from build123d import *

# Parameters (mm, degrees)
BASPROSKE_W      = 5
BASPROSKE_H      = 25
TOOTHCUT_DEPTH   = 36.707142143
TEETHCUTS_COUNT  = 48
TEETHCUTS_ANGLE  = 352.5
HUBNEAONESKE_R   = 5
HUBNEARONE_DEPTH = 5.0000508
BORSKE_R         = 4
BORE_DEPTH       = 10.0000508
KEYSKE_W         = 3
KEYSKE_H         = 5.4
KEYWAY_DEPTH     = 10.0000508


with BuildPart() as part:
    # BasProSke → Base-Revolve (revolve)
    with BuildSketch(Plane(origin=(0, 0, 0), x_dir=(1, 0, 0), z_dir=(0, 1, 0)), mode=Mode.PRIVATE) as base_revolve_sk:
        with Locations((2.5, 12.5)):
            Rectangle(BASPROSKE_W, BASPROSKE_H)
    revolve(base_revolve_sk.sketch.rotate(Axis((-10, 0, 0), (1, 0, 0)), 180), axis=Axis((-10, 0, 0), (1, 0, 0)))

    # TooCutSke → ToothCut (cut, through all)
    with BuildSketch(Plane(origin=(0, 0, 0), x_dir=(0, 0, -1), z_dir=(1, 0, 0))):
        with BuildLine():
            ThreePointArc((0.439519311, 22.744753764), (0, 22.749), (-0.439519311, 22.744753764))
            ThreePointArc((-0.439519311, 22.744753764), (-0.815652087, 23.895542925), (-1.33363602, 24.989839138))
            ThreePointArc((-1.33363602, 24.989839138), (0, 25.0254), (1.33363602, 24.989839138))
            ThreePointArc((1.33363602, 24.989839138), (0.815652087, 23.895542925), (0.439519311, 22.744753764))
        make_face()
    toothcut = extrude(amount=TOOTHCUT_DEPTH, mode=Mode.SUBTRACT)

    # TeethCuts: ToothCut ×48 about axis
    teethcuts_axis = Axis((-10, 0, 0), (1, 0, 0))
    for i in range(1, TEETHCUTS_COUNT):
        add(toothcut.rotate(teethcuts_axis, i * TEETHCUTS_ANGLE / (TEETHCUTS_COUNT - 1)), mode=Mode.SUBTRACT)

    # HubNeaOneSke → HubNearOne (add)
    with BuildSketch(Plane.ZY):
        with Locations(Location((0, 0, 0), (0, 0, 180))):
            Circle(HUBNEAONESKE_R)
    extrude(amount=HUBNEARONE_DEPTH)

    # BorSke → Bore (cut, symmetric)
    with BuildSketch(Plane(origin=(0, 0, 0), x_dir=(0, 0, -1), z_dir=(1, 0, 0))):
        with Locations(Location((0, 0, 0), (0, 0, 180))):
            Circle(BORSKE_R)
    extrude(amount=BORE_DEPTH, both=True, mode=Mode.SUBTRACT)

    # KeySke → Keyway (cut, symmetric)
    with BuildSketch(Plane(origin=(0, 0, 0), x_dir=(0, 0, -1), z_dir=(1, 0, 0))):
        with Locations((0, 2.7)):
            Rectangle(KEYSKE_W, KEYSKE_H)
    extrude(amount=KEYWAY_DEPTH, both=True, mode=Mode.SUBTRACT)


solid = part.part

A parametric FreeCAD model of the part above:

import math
import FreeCAD as App
import Part
import Sketcher

V = App.Vector
Q = App.Units.Quantity

doc = App.newDocument("Part")
params = doc.addObject("Spreadsheet::Sheet", "Params")
for row, (alias, value) in enumerate([
    ("sketch1_width", "5 mm"),
    ("sketch1_height", "25 mm"),
    ("revolution_angle", "360 deg"),
    ("sketch2_radius", "9.6 mm"),
    ("sketch3_diameter", "10 mm"),
    ("pad1_length", "5.000051 mm"),
    ("sketch4_diameter", "8 mm"),
    ("pocket2_length", "20.000102 mm"),
    ("sketch5_height", "3 mm"),
    ("sketch5_width", "5.4 mm"),
    ("pocket3_length", "20.000102 mm"),
], start=1):
    params.set(f"A{row}", alias)
    params.set(f"B{row}", "=" + value)
    params.setAlias(f"B{row}", alias)

body = doc.addObject("PartDesign::Body", "Body")

sketch1 = body.newObject("Sketcher::SketchObject", "Sketch")
sketch1.AttachmentSupport = (doc.getObject("XZ_Plane"), [""])
sketch1.MapMode = "FlatFace"
sketch1.addGeometry(Part.LineSegment(V(0, -25, 0), V(0, 0, 0)), False)
sketch1.addGeometry(Part.LineSegment(V(0, 0, 0), V(5, 0, 0)), False)
sketch1.addGeometry(Part.LineSegment(V(5, 0, 0), V(5, -25, 0)), False)
sketch1.addGeometry(Part.LineSegment(V(5, -25, 0), V(0, -25, 0)), False)
sketch1.addConstraint(Sketcher.Constraint("Coincident", 0, 2, 1, 1))
sketch1.addConstraint(Sketcher.Constraint("Coincident", 1, 2, 2, 1))
sketch1.addConstraint(Sketcher.Constraint("Coincident", 2, 2, 3, 1))
sketch1.addConstraint(Sketcher.Constraint("Coincident", 3, 2, 0, 1))
sketch1.addConstraint(Sketcher.Constraint("Vertical", 0))
sketch1.addConstraint(Sketcher.Constraint("Horizontal", 1))
sketch1.addConstraint(Sketcher.Constraint("Vertical", 2))
sketch1.addConstraint(Sketcher.Constraint("Horizontal", 3))
sketch1.addConstraint(Sketcher.Constraint("Coincident", 0, 2, -1, 1))
sketch1.addConstraint(Sketcher.Constraint("DistanceX", 1, 1, 1, 2, Q("5 mm")))
sketch1.addConstraint(Sketcher.Constraint("DistanceY", 0, 1, 0, 2, Q("25 mm")))
sketch1.setExpression("Constraints[9]", "Params.sketch1_width")
sketch1.setExpression("Constraints[10]", "Params.sketch1_height")
revolution = body.newObject("PartDesign::Revolution", "Revolution")
revolution.Profile = sketch1
revolution.ReferenceAxis = (sketch1, ["H_Axis"])
revolution.setExpression("Angle", "Params.revolution_angle")

sketch2 = body.newObject("Sketcher::SketchObject", "Sketch001")
sketch2.AttachmentSupport = (doc.getObject("YZ_Plane"), [""])
sketch2.MapMode = "FlatFace"
sketch2.addGeometry(Part.ArcOfCircle(Part.Circle(V(0, 0, 0), V(0, 0, 1), 22.7), math.radians(-1.11), math.radians(1.11)), False)
sketch2.addGeometry(Part.ArcOfCircle(Part.Circle(V(20.3, -9.7, 0), V(0, 0, 1), 9.6), math.radians(61.05), math.radians(75.52)), False)
sketch2.addGeometry(Part.ArcOfCircle(Part.Circle(V(0, 0, 0), V(0, 0, 1), 25), math.radians(-3.05), math.radians(3.05)), False)
sketch2.addGeometry(Part.ArcOfCircle(Part.Circle(V(20.3, 9.7, 0), V(0, 0, 1), 9.6), math.radians(-75.52), math.radians(-61.05)), False)
sketch2.addConstraint(Sketcher.Constraint("Coincident", 0, 1, 1, 2))
sketch2.addConstraint(Sketcher.Constraint("Coincident", 1, 1, 2, 1))
sketch2.addConstraint(Sketcher.Constraint("Coincident", 2, 2, 3, 2))
sketch2.addConstraint(Sketcher.Constraint("Coincident", 3, 1, 0, 2))
sketch2.addConstraint(Sketcher.Constraint("Coincident", 0, 3, -1, 1))
sketch2.addConstraint(Sketcher.Constraint("Coincident", 2, 3, -1, 1))
sketch2.addConstraint(Sketcher.Constraint("Equal", 1, 3))
sketch2.addConstraint(Sketcher.Constraint("Symmetric", 1, 3, 3, 3, -1))
sketch2.addConstraint(Sketcher.Constraint("Radius", 1, Q("9.6 mm")))
sketch2.addConstraint(Sketcher.Constraint("Radius", 0, Q("22.749001 mm")))
sketch2.addConstraint(Sketcher.Constraint("Radius", 2, Q("25.0254 mm")))
sketch2.addConstraint(Sketcher.Constraint("DistanceY", 0, 1, -1, 1, Q("0.439519 mm")))
sketch2.addConstraint(Sketcher.Constraint("DistanceX", -1, 1, 2, 2, Q("24.989839 mm")))
sketch2.setExpression("Constraints[8]", "Params.sketch2_radius")
pocket1 = body.newObject("PartDesign::Pocket", "Pocket")
pocket1.Profile = sketch2
pocket1.Type = "ThroughAll"
pocket1.Reversed = True
doc.recompute()

polarpattern = body.newObject("PartDesign::PolarPattern", "PolarPattern")
polarpattern.Originals = [pocket1]
polarpattern.Axis = (doc.getObject("X_Axis"), [""])
polarpattern.Angle = 360
polarpattern.Occurrences = 48
body.Tip = polarpattern

sketch3 = body.newObject("Sketcher::SketchObject", "Sketch002")
sketch3.AttachmentSupport = (doc.getObject("YZ_Plane"), [""])
sketch3.MapMode = "FlatFace"
sketch3.addGeometry(Part.Circle(V(0, 0, 0), V(0, 0, 1), 5), False)
sketch3.addConstraint(Sketcher.Constraint("Coincident", 0, 3, -1, 1))
sketch3.addConstraint(Sketcher.Constraint("Diameter", 0, Q("10 mm")))
sketch3.setExpression("Constraints[1]", "Params.sketch3_diameter")
pad1 = body.newObject("PartDesign::Pad", "Pad")
pad1.Profile = sketch3
pad1.setExpression("Length", "Params.pad1_length")
pad1.Reversed = True

sketch4 = body.newObject("Sketcher::SketchObject", "Sketch003")
sketch4.AttachmentSupport = (doc.getObject("YZ_Plane"), [""])
sketch4.MapMode = "FlatFace"
sketch4.addGeometry(Part.Circle(V(0, 0, 0), V(0, 0, 1), 4), False)
sketch4.addConstraint(Sketcher.Constraint("Coincident", 0, 3, -1, 1))
sketch4.addConstraint(Sketcher.Constraint("Diameter", 0, Q("8 mm")))
sketch4.setExpression("Constraints[1]", "Params.sketch4_diameter")
pocket2 = body.newObject("PartDesign::Pocket", "Pocket001")
pocket2.Profile = sketch4
pocket2.setExpression("Length", "Params.pocket2_length")
pocket2.Midplane = True

sketch5 = body.newObject("Sketcher::SketchObject", "Sketch004")
sketch5.AttachmentSupport = (doc.getObject("YZ_Plane"), [""])
sketch5.MapMode = "FlatFace"
sketch5.addGeometry(Part.LineSegment(V(5.4, 1.5, 0), V(0, 1.5, 0)), False)
sketch5.addGeometry(Part.LineSegment(V(0, 1.5, 0), V(0, -1.5, 0)), False)
sketch5.addGeometry(Part.LineSegment(V(0, -1.5, 0), V(5.4, -1.5, 0)), False)
sketch5.addGeometry(Part.LineSegment(V(5.4, -1.5, 0), V(5.4, 1.5, 0)), False)
sketch5.addConstraint(Sketcher.Constraint("Coincident", 0, 2, 1, 1))
sketch5.addConstraint(Sketcher.Constraint("Coincident", 1, 2, 2, 1))
sketch5.addConstraint(Sketcher.Constraint("Coincident", 2, 2, 3, 1))
sketch5.addConstraint(Sketcher.Constraint("Coincident", 3, 2, 0, 1))
sketch5.addConstraint(Sketcher.Constraint("Horizontal", 0))
sketch5.addConstraint(Sketcher.Constraint("Vertical", 1))
sketch5.addConstraint(Sketcher.Constraint("Horizontal", 2))
sketch5.addConstraint(Sketcher.Constraint("Vertical", 3))
sketch5.addConstraint(Sketcher.Constraint("Symmetric", 0, 2, 1, 2, -1, 1))
sketch5.addConstraint(Sketcher.Constraint("DistanceY", 1, 2, 1, 1, Q("3 mm")))
sketch5.addConstraint(Sketcher.Constraint("DistanceX", 0, 2, 0, 1, Q("5.4 mm")))
sketch5.setExpression("Constraints[9]", "Params.sketch5_height")
sketch5.setExpression("Constraints[10]", "Params.sketch5_width")
pocket3 = body.newObject("PartDesign::Pocket", "Pocket002")
pocket3.Profile = sketch5
pocket3.setExpression("Length", "Params.pocket3_length")
pocket3.Midplane = True

doc.recompute()
